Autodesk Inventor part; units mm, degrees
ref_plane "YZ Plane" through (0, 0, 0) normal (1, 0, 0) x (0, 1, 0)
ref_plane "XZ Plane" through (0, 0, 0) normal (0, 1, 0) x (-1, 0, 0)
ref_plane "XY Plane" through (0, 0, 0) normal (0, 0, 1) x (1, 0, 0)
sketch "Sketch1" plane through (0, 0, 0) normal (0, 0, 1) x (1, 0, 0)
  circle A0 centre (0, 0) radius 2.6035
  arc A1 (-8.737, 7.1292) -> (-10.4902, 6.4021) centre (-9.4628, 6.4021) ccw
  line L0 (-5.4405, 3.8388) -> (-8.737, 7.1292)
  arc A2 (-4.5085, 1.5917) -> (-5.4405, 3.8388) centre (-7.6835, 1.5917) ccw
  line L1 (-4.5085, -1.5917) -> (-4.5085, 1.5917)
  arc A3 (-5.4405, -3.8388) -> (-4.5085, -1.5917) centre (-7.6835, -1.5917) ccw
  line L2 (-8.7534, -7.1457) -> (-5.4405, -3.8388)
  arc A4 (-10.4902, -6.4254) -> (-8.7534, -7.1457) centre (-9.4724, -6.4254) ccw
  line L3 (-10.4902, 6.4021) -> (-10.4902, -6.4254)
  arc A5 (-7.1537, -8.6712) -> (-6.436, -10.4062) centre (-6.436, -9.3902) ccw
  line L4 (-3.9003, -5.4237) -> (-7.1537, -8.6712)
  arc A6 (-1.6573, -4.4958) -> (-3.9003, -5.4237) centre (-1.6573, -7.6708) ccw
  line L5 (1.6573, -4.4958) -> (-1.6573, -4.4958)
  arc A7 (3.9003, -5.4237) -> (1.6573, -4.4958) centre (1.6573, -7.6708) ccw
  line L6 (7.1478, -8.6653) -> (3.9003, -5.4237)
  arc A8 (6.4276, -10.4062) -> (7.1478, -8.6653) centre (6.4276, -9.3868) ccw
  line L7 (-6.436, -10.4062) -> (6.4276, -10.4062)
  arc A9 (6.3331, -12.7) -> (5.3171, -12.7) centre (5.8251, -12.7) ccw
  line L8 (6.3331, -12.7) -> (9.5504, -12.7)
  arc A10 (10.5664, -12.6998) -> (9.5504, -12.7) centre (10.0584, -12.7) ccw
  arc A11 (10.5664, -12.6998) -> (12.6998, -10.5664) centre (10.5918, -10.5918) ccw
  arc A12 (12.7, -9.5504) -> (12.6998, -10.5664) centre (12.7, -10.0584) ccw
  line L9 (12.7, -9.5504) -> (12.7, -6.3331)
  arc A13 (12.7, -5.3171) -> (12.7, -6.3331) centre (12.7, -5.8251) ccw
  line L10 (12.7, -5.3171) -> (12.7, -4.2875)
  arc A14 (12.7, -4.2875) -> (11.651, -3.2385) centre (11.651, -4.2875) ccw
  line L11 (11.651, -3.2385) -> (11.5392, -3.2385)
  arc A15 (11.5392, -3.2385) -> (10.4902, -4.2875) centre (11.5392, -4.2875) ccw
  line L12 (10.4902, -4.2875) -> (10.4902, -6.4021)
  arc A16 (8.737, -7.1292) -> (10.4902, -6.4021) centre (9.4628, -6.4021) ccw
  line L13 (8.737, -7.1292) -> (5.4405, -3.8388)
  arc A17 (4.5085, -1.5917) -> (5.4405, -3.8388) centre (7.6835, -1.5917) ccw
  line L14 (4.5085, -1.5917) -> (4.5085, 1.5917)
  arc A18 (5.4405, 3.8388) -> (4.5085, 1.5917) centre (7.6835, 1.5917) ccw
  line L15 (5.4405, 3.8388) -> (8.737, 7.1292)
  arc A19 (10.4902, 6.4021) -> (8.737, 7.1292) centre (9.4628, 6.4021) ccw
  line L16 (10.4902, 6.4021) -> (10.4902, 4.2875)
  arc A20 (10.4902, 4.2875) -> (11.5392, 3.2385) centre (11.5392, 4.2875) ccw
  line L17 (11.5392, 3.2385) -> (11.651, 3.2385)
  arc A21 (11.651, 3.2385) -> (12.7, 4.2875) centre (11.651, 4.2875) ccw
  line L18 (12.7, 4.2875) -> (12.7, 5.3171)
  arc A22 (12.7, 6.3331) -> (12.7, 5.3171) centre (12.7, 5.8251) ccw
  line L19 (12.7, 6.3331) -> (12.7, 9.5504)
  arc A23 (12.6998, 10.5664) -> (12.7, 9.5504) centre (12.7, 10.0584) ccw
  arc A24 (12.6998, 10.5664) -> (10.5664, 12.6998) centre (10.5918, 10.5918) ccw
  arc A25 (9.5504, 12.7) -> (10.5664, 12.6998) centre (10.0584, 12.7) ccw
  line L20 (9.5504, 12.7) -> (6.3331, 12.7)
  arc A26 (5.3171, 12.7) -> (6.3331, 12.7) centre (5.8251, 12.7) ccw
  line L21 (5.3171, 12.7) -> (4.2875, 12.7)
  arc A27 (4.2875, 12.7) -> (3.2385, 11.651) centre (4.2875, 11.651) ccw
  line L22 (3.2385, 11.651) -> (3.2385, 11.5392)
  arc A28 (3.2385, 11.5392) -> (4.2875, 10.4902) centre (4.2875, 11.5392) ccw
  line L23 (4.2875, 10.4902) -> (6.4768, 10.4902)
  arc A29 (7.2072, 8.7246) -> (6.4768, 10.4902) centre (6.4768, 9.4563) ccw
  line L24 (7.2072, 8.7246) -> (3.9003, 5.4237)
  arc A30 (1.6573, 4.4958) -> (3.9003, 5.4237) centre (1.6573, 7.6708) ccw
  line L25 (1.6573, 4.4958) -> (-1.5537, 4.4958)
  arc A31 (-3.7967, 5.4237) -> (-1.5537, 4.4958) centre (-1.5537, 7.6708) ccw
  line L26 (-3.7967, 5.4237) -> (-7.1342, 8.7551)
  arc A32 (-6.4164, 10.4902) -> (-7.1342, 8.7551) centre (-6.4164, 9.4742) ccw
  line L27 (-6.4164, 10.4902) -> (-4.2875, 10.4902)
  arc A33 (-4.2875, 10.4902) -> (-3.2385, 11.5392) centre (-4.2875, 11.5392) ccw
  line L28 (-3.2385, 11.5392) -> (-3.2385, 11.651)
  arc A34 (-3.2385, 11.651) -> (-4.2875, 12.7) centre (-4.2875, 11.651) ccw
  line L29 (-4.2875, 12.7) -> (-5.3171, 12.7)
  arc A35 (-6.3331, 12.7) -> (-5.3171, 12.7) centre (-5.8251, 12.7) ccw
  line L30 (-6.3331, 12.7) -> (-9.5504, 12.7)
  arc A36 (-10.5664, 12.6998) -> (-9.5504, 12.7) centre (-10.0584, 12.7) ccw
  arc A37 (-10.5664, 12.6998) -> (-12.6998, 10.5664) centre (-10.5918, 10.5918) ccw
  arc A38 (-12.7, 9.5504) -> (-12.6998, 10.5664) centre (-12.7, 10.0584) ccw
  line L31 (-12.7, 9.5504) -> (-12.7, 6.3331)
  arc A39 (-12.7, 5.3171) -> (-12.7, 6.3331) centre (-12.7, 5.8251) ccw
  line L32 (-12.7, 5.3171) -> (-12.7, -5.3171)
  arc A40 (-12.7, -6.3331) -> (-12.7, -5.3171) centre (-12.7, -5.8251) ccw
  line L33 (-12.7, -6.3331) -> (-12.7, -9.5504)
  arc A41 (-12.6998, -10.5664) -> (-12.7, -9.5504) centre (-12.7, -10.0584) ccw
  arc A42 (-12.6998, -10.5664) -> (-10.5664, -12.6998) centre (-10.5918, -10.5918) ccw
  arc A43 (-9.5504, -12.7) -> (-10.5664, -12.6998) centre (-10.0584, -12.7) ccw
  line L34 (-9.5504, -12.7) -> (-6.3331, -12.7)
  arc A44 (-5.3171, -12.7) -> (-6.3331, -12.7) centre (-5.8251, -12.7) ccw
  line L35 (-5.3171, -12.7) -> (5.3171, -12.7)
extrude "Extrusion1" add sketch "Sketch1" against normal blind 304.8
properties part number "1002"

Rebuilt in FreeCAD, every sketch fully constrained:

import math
import FreeCAD as App
import Part
import Sketcher
Q = App.Units.Quantity

doc = App.newDocument("Part")
body = doc.addObject("PartDesign::Body", "Body")

# Sketch on XY plane
sketch1 = body.newObject("Sketcher::SketchObject", "Sketch")
sketch1.AttachmentSupport = (doc.getObject("XY_Plane"), [""])
sketch1.MapMode = "FlatFace"
sketch1.addGeometry([
    Part.ArcOfCircle(Part.Circle(App.Vector(5.8251, -12.7, 0), App.Vector(0, 0, 1), 0.508), math.radians(0), math.radians(180)),  # 0
    Part.LineSegment(App.Vector(6.3331, -12.7, 0), App.Vector(9.5504, -12.7, 0)),  # 1
    Part.ArcOfCircle(Part.Circle(App.Vector(10.0584, -12.7, 0), App.Vector(0, 0, 1), 0.508), math.radians(0.022557), math.radians(180)),  # 2
    Part.ArcOfCircle(Part.Circle(App.Vector(10.5918, -10.5918, 0), App.Vector(0, 0, 1), 2.108153), math.radians(-90.690343), math.radians(0.690343)),  # 3
    Part.ArcOfCircle(Part.Circle(App.Vector(12.7, -10.0584, 0), App.Vector(0, 0, 1), 0.508), math.radians(90), math.radians(269.977443)),  # 4
    Part.LineSegment(App.Vector(12.7, -9.5504, 0), App.Vector(12.7, -6.3331, 0)),  # 5
    Part.ArcOfCircle(Part.Circle(App.Vector(12.7, -5.8251, 0), App.Vector(0, 0, 1), 0.508), math.radians(90), math.radians(270)),  # 6
    Part.LineSegment(App.Vector(12.7, -5.3171, 0), App.Vector(12.7, -4.2875, 0)),  # 7
    Part.ArcOfCircle(Part.Circle(App.Vector(11.651, -4.2875, 0), App.Vector(0, 0, 1), 1.049), math.radians(0), math.radians(90)),  # 8
    Part.LineSegment(App.Vector(11.651, -3.2385, 0), App.Vector(11.5392, -3.2385, 0)),  # 9
    Part.ArcOfCircle(Part.Circle(App.Vector(11.5392, -4.2875, 0), App.Vector(0, 0, 1), 1.049), math.radians(90), math.radians(180)),  # 10
    Part.LineSegment(App.Vector(10.4902, -4.2875, 0), App.Vector(10.4902, -6.4021, 0)),  # 11
    Part.ArcOfCircle(Part.Circle(App.Vector(9.4628, -6.4021, 0), App.Vector(0, 0, 1), 1.027356), math.radians(-134.948734), math.radians(0)),  # 12
    Part.LineSegment(App.Vector(8.737, -7.1292, 0), App.Vector(5.4405, -3.8388, 0)),  # 13
    Part.ArcOfCircle(Part.Circle(App.Vector(7.6835, -1.5917, 0), App.Vector(0, 0, 1), 3.175), math.radians(180), math.radians(225.052318)),  # 14
    Part.LineSegment(App.Vector(4.5085, -1.5917, 0), App.Vector(4.5085, 1.5917, 0)),  # 15
    Part.ArcOfCircle(Part.Circle(App.Vector(7.6835, 1.5917, 0), App.Vector(0, 0, 1), 3.174981), math.radians(134.947682), math.radians(180)),  # 16
    Part.LineSegment(App.Vector(5.4405, 3.8388, 0), App.Vector(8.737, 7.1292, 0)),  # 17
    Part.ArcOfCircle(Part.Circle(App.Vector(9.4628, 6.4021, 0), App.Vector(0, 0, 1), 1.0274), math.radians(0), math.radians(134.948734)),  # 18
    Part.LineSegment(App.Vector(10.4902, 6.4021, 0), App.Vector(10.4902, 4.2875, 0)),  # 19
    Part.ArcOfCircle(Part.Circle(App.Vector(11.5392, 4.2875, 0), App.Vector(0, 0, 1), 1.049), math.radians(180), math.radians(270)),  # 20
    Part.LineSegment(App.Vector(11.5392, 3.2385, 0), App.Vector(11.651, 3.2385, 0)),  # 21
    Part.ArcOfCircle(Part.Circle(App.Vector(11.651, 4.2875, 0), App.Vector(0, 0, 1), 1.049), math.radians(-90), math.radians(0)),  # 22
    Part.LineSegment(App.Vector(12.7, 4.2875, 0), App.Vector(12.7, 5.3171, 0)),  # 23
    Part.ArcOfCircle(Part.Circle(App.Vector(12.7, 5.8251, 0), App.Vector(0, 0, 1), 0.508), math.radians(90), math.radians(270)),  # 24
    Part.LineSegment(App.Vector(12.7, 6.3331, 0), App.Vector(12.7, 9.5504, 0)),  # 25
    Part.ArcOfCircle(Part.Circle(App.Vector(12.7, 10.0584, 0), App.Vector(0, 0, 1), 0.508), math.radians(90.022557), math.radians(270)),  # 26
    Part.ArcOfCircle(Part.Circle(App.Vector(10.5918, 10.5918, 0), App.Vector(0, 0, 1), 2.108153), math.radians(-0.690343), math.radians(90.690343)),  # 27
    Part.ArcOfCircle(Part.Circle(App.Vector(10.0584, 12.7, 0), App.Vector(0, 0, 1), 0.508), math.radians(180), math.radians(359.977443)),  # 28
    Part.LineSegment(App.Vector(9.5504, 12.7, 0), App.Vector(6.3331, 12.7, 0)),  # 29
    Part.ArcOfCircle(Part.Circle(App.Vector(5.8251, 12.7, 0), App.Vector(0, 0, 1), 0.508), math.radians(180), math.radians(360)),  # 30
    Part.LineSegment(App.Vector(5.3171, 12.7, 0), App.Vector(4.2875, 12.7, 0)),  # 31
    Part.ArcOfCircle(Part.Circle(App.Vector(4.2875, 11.651, 0), App.Vector(0, 0, 1), 1.049), math.radians(90), math.radians(180)),  # 32
    Part.LineSegment(App.Vector(3.2385, 11.651, 0), App.Vector(3.2385, 11.5392, 0)),  # 33
    Part.ArcOfCircle(Part.Circle(App.Vector(4.2875, 11.5392, 0), App.Vector(0, 0, 1), 1.049), math.radians(180), math.radians(270)),  # 34
    Part.LineSegment(App.Vector(4.2875, 10.4902, 0), App.Vector(6.4768, 10.4902, 0)),  # 35
    Part.ArcOfCircle(Part.Circle(App.Vector(6.4768, 9.4563, 0), App.Vector(0, 0, 1), 1.033861), math.radians(-45.050944), math.radians(90)),  # 36
    Part.LineSegment(App.Vector(7.2072, 8.7246, 0), App.Vector(3.9003, 5.4237, 0)),  # 37
    Part.ArcOfCircle(Part.Circle(App.Vector(1.6573, 7.6708, 0), App.Vector(0, 0, 1), 3.175), math.radians(-90), math.radians(-45.052318)),  # 38
    Part.LineSegment(App.Vector(1.6573, 4.4958, 0), App.Vector(-1.5537, 4.4958, 0)),  # 39
    Part.ArcOfCircle(Part.Circle(App.Vector(-1.5537, 7.6708, 0), App.Vector(0, 0, 1), 3.174981), math.radians(-134.947682), math.radians(-90)),  # 40
    Part.LineSegment(App.Vector(-3.7967, 5.4237, 0), App.Vector(-7.1342, 8.7551, 0)),  # 41
    Part.ArcOfCircle(Part.Circle(App.Vector(-6.4164, 9.4742, 0), App.Vector(0, 0, 1), 1.016), math.radians(90), math.radians(225.051837)),  # 42
    Part.LineSegment(App.Vector(-6.4164, 10.4902, 0), App.Vector(-4.2875, 10.4902, 0)),  # 43
    Part.ArcOfCircle(Part.Circle(App.Vector(-4.2875, 11.5392, 0), App.Vector(0, 0, 1), 1.049), math.radians(-90), math.radians(0)),  # 44
    Part.LineSegment(App.Vector(-3.2385, 11.5392, 0), App.Vector(-3.2385, 11.651, 0)),  # 45
    Part.ArcOfCircle(Part.Circle(App.Vector(-4.2875, 11.651, 0), App.Vector(0, 0, 1), 1.049), math.radians(0), math.radians(90)),  # 46
    Part.LineSegment(App.Vector(-4.2875, 12.7, 0), App.Vector(-5.3171, 12.7, 0)),  # 47
    Part.ArcOfCircle(Part.Circle(App.Vector(-5.8251, 12.7, 0), App.Vector(0, 0, 1), 0.508), math.radians(180), math.radians(360)),  # 48
    Part.LineSegment(App.Vector(-6.3331, 12.7, 0), App.Vector(-9.5504, 12.7, 0)),  # 49
    Part.ArcOfCircle(Part.Circle(App.Vector(-10.0584, 12.7, 0), App.Vector(0, 0, 1), 0.508), math.radians(-179.977443), math.radians(0)),  # 50
    Part.ArcOfCircle(Part.Circle(App.Vector(-10.5918, 10.5918, 0), App.Vector(0, 0, 1), 2.108153), math.radians(89.309657), math.radians(180.690343)),  # 51
    Part.ArcOfCircle(Part.Circle(App.Vector(-12.7, 10.0584, 0), App.Vector(0, 0, 1), 0.508), math.radians(-90), math.radians(89.977443)),  # 52
    Part.LineSegment(App.Vector(-12.7, 9.5504, 0), App.Vector(-12.7, 6.3331, 0)),  # 53
    Part.ArcOfCircle(Part.Circle(App.Vector(-12.7, 5.8251, 0), App.Vector(0, 0, 1), 0.508), math.radians(-90), math.radians(90)),  # 54
    Part.LineSegment(App.Vector(-12.7, 5.3171, 0), App.Vector(-12.7, -5.3171, 0)),  # 55
    Part.ArcOfCircle(Part.Circle(App.Vector(-12.7, -5.8251, 0), App.Vector(0, 0, 1), 0.508), math.radians(-90), math.radians(90)),  # 56
    Part.LineSegment(App.Vector(-12.7, -6.3331, 0), App.Vector(-12.7, -9.5504, 0)),  # 57
    Part.ArcOfCircle(Part.Circle(App.Vector(-12.7, -10.0584, 0), App.Vector(0, 0, 1), 0.508), math.radians(-89.977443), math.radians(90)),  # 58
    Part.ArcOfCircle(Part.Circle(App.Vector(-10.5918, -10.5918, 0), App.Vector(0, 0, 1), 2.108153), math.radians(179.309657), math.radians(270.690343)),  # 59
    Part.ArcOfCircle(Part.Circle(App.Vector(-10.0584, -12.7, 0), App.Vector(0, 0, 1), 0.508), math.radians(0), math.radians(179.977443)),  # 60
    Part.LineSegment(App.Vector(-9.5504, -12.7, 0), App.Vector(-6.3331, -12.7, 0)),  # 61
    Part.ArcOfCircle(Part.Circle(App.Vector(-5.8251, -12.7, 0), App.Vector(0, 0, 1), 0.508), math.radians(0), math.radians(180)),  # 62
    Part.LineSegment(App.Vector(-5.3171, -12.7, 0), App.Vector(5.3171, -12.7, 0)),  # 63
    Part.ArcOfCircle(Part.Circle(App.Vector(-6.436, -9.3902, 0), App.Vector(0, 0, 1), 1.015901), math.radians(134.948156), math.radians(270)),  # 64
    Part.LineSegment(App.Vector(-7.1537, -8.6712, 0), App.Vector(-3.9003, -5.4237, 0)),  # 65
    Part.ArcOfCircle(Part.Circle(App.Vector(-1.6573, -7.6708, 0), App.Vector(0, 0, 1), 3.175), math.radians(90), math.radians(134.947682)),  # 66
    Part.LineSegment(App.Vector(-1.6573, -4.4958, 0), App.Vector(1.6573, -4.4958, 0)),  # 67
    Part.ArcOfCircle(Part.Circle(App.Vector(1.6573, -7.6708, 0), App.Vector(0, 0, 1), 3.174981), math.radians(45.052318), math.radians(90)),  # 68
    Part.LineSegment(App.Vector(3.9003, -5.4237, 0), App.Vector(7.1478, -8.6653, 0)),  # 69
    Part.ArcOfCircle(Part.Circle(App.Vector(6.4276, -9.3868, 0), App.Vector(0, 0, 1), 1.0194), math.radians(-90), math.radians(45.051664)),  # 70
    Part.LineSegment(App.Vector(6.4276, -10.4062, 0), App.Vector(-6.436, -10.4062, 0)),  # 71
    Part.ArcOfCircle(Part.Circle(App.Vector(-9.4628, 6.4021, 0), App.Vector(0, 0, 1), 1.027356), math.radians(45.051266), math.radians(180)),  # 72
    Part.LineSegment(App.Vector(-8.737, 7.1292, 0), App.Vector(-5.4405, 3.8388, 0)),  # 73
    Part.ArcOfCircle(Part.Circle(App.Vector(-7.6835, 1.5917, 0), App.Vector(0, 0, 1), 3.175), math.radians(0), math.radians(45.052318)),  # 74
    Part.LineSegment(App.Vector(-4.5085, 1.5917, 0), App.Vector(-4.5085, -1.5917, 0)),  # 75
    Part.ArcOfCircle(Part.Circle(App.Vector(-7.6835, -1.5917, 0), App.Vector(0, 0, 1), 3.174981), math.radians(-45.052318), math.radians(0)),  # 76
    Part.LineSegment(App.Vector(-5.4405, -3.8388, 0), App.Vector(-8.7534, -7.1457, 0)),  # 77
    Part.ArcOfCircle(Part.Circle(App.Vector(-9.4724, -6.4254, 0), App.Vector(0, 0, 1), 1.0178), math.radians(180), math.radians(314.94825)),  # 78
    Part.LineSegment(App.Vector(-10.4902, -6.4254, 0), App.Vector(-10.4902, 6.4021, 0)),  # 79
    Part.Circle(App.Vector(0, 0, 0), App.Vector(0, 0, 1), 2.6035),  # 80
], False)
sketch1.addConstraint([
    Sketcher.Constraint("Coincident", 0, 1, 1, 1),
    Sketcher.Constraint("Coincident", 1, 2, 2, 2),
    Sketcher.Constraint("Coincident", 2, 1, 3, 1),
    Sketcher.Constraint("Coincident", 3, 2, 4, 2),
    Sketcher.Constraint("Coincident", 4, 1, 5, 1),
    Sketcher.Constraint("Coincident", 5, 2, 6, 2),
    Sketcher.Constraint("Coincident", 6, 1, 7, 1),
    Sketcher.Constraint("Tangent", 7, 2, 8, 1),
    Sketcher.Constraint("Tangent", 8, 2, 9, 1),
    Sketcher.Constraint("Tangent", 9, 2, 10, 1),
    Sketcher.Constraint("Tangent", 10, 2, 11, 1),
    Sketcher.Constraint("Tangent", 11, 2, 12, 2),
    Sketcher.Constraint("Tangent", 12, 1, 13, 1),
    Sketcher.Constraint("Tangent", 13, 2, 14, 2),
    Sketcher.Constraint("Tangent", 14, 1, 15, 1),
    Sketcher.Constraint("Tangent", 15, 2, 16, 2),
    Sketcher.Constraint("Tangent", 16, 1, 17, 1),
    Sketcher.Constraint("Tangent", 17, 2, 18, 2),
    Sketcher.Constraint("Tangent", 18, 1, 19, 1),
    Sketcher.Constraint("Tangent", 19, 2, 20, 1),
    Sketcher.Constraint("Tangent", 20, 2, 21, 1),
    Sketcher.Constraint("Tangent", 21, 2, 22, 1),
    Sketcher.Constraint("Tangent", 22, 2, 23, 1),
    Sketcher.Constraint("Coincident", 23, 2, 24, 2),
    Sketcher.Constraint("Coincident", 24, 1, 25, 1),
    Sketcher.Constraint("Coincident", 25, 2, 26, 2),
    Sketcher.Constraint("Coincident", 26, 1, 27, 1),
    Sketcher.Constraint("Coincident", 27, 2, 28, 2),
    Sketcher.Constraint("Coincident", 28, 1, 29, 1),
    Sketcher.Constraint("Coincident", 29, 2, 30, 2),
    Sketcher.Constraint("Coincident", 30, 1, 31, 1),
    Sketcher.Constraint("Tangent", 31, 2, 32, 1),
    Sketcher.Constraint("Tangent", 32, 2, 33, 1),
    Sketcher.Constraint("Tangent", 33, 2, 34, 1),
    Sketcher.Constraint("Tangent", 34, 2, 35, 1),
    Sketcher.Constraint("Tangent", 35, 2, 36, 2),
    Sketcher.Constraint("Tangent", 36, 1, 37, 1),
    Sketcher.Constraint("Tangent", 37, 2, 38, 2),
    Sketcher.Constraint("Tangent", 38, 1, 39, 1),
    Sketcher.Constraint("Tangent", 39, 2, 40, 2),
    Sketcher.Constraint("Tangent", 40, 1, 41, 1),
    Sketcher.Constraint("Tangent", 41, 2, 42, 2),
    Sketcher.Constraint("Tangent", 42, 1, 43, 1),
    Sketcher.Constraint("Tangent", 43, 2, 44, 1),
    Sketcher.Constraint("Tangent", 44, 2, 45, 1),
    Sketcher.Constraint("Tangent", 45, 2, 46, 1),
    Sketcher.Constraint("Tangent", 46, 2, 47, 1),
    Sketcher.Constraint("Coincident", 47, 2, 48, 2),
    Sketcher.Constraint("Coincident", 48, 1, 49, 1),
    Sketcher.Constraint("Coincident", 49, 2, 50, 2),
    Sketcher.Constraint("Coincident", 50, 1, 51, 1),
    Sketcher.Constraint("Coincident", 51, 2, 52, 2),
    Sketcher.Constraint("Coincident", 52, 1, 53, 1),
    Sketcher.Constraint("Coincident", 53, 2, 54, 2),
    Sketcher.Constraint("Coincident", 54, 1, 55, 1),
    Sketcher.Constraint("Coincident", 55, 2, 56, 2),
    Sketcher.Constraint("Coincident", 56, 1, 57, 1),
    Sketcher.Constraint("Coincident", 57, 2, 58, 2),
    Sketcher.Constraint("Coincident", 58, 1, 59, 1),
    Sketcher.Constraint("Coincident", 59, 2, 60, 2),
    Sketcher.Constraint("Coincident", 60, 1, 61, 1),
    Sketcher.Constraint("Coincident", 61, 2, 62, 2),
    Sketcher.Constraint("Coincident", 62, 1, 63, 1),
    Sketcher.Constraint("Coincident", 63, 2, 0, 2),
    Sketcher.Constraint("Tangent", 64, 1, 65, 1),
    Sketcher.Constraint("Tangent", 65, 2, 66, 2),
    Sketcher.Constraint("Tangent", 66, 1, 67, 1),
    Sketcher.Constraint("Tangent", 67, 2, 68, 2),
    Sketcher.Constraint("Tangent", 68, 1, 69, 1),
    Sketcher.Constraint("Tangent", 69, 2, 70, 2),
    Sketcher.Constraint("Tangent", 70, 1, 71, 1),
    Sketcher.Constraint("Tangent", 71, 2, 64, 2),
    Sketcher.Constraint("Tangent", 72, 1, 73, 1),
    Sketcher.Constraint("Tangent", 73, 2, 74, 2),
    Sketcher.Constraint("Tangent", 74, 1, 75, 1),
    Sketcher.Constraint("Tangent", 75, 2, 76, 2),
    Sketcher.Constraint("Tangent", 76, 1, 77, 1),
    Sketcher.Constraint("Tangent", 77, 2, 78, 2),
    Sketcher.Constraint("Tangent", 78, 1, 79, 1),
    Sketcher.Constraint("Tangent", 79, 2, 72, 2),
    Sketcher.Constraint("Horizontal", 1),
    Sketcher.Constraint("Vertical", 5),
    Sketcher.Constraint("Vertical", 7),
    Sketcher.Constraint("Horizontal", 9),
    Sketcher.Constraint("Vertical", 11),
    Sketcher.Constraint("Vertical", 15),
    Sketcher.Constraint("Vertical", 19),
    Sketcher.Constraint("Horizontal", 21),
    Sketcher.Constraint("Vertical", 23),
    Sketcher.Constraint("Vertical", 25),
    Sketcher.Constraint("Horizontal", 29),
    Sketcher.Constraint("Horizontal", 31),
    Sketcher.Constraint("Vertical", 33),
    Sketcher.Constraint("Horizontal", 35),
    Sketcher.Constraint("Horizontal", 39),
    Sketcher.Constraint("Horizontal", 43),
    Sketcher.Constraint("Vertical", 45),
    Sketcher.Constraint("Horizontal", 47),
    Sketcher.Constraint("Horizontal", 49),
    Sketcher.Constraint("Vertical", 53),
    Sketcher.Constraint("Vertical", 55),
    Sketcher.Constraint("Vertical", 57),
    Sketcher.Constraint("Horizontal", 61),
    Sketcher.Constraint("Horizontal", 63),
    Sketcher.Constraint("Horizontal", 67),
    Sketcher.Constraint("Horizontal", 71),
    Sketcher.Constraint("Vertical", 75),
    Sketcher.Constraint("Vertical", 79),
    Sketcher.Constraint("Coincident", 80, 3, -1, 1),
    Sketcher.Constraint("Equal", 0, 2),
    Sketcher.Constraint("Equal", 2, 4),
    Sketcher.Constraint("Equal", 4, 6),
    Sketcher.Constraint("Equal", 8, 10),
    Sketcher.Constraint("Equal", 14, 16),
    Sketcher.Constraint("Equal", 12, 18),
    Sketcher.Constraint("Equal", 10, 20),
    Sketcher.Constraint("Equal", 20, 22),
    Sketcher.Constraint("Equal", 6, 24),
    Sketcher.Constraint("Equal", 24, 26),
    Sketcher.Constraint("Equal", 3, 27),
    Sketcher.Constraint("Equal", 26, 28),
    Sketcher.Constraint("Equal", 28, 30),
    Sketcher.Constraint("Equal", 22, 32),
    Sketcher.Constraint("Equal", 32, 34),
    Sketcher.Constraint("Equal", 16, 38),
    Sketcher.Constraint("Equal", 38, 40),
    Sketcher.Constraint("Equal", 34, 44),
    Sketcher.Constraint("Equal", 44, 46),
    Sketcher.Constraint("Equal", 30, 48),
    Sketcher.Constraint("Equal", 48, 50),
    Sketcher.Constraint("Equal", 27, 51),
    Sketcher.Constraint("Equal", 50, 52),
    Sketcher.Constraint("Equal", 52, 54),
    Sketcher.Constraint("Equal", 54, 56),
    Sketcher.Constraint("Equal", 56, 58),
    Sketcher.Constraint("Equal", 51, 59),
    Sketcher.Constraint("Equal", 58, 60),
    Sketcher.Constraint("Equal", 60, 62),
    Sketcher.Constraint("Equal", 42, 64),
    Sketcher.Constraint("Equal", 40, 66),
    Sketcher.Constraint("Equal", 66, 68),
    Sketcher.Constraint("Equal", 18, 72),
    Sketcher.Constraint("Equal", 68, 74),
    Sketcher.Constraint("Equal", 74, 76),
    Sketcher.Constraint("Symmetric", 0, 3, 48, 3, -1, 1),
    Sketcher.Constraint("Symmetric", 2, 3, 50, 3, -1, 1),
    Sketcher.Constraint("Symmetric", 3, 3, 51, 3, -1, 1),
    Sketcher.Constraint("Symmetric", 4, 3, 52, 3, -1, 1),
    Sketcher.Constraint("Symmetric", 6, 3, 54, 3, -1, 1),
    Sketcher.Constraint("Symmetric", 24, 3, 56, 3, -1, 1),
    Sketcher.Constraint("Symmetric", 26, 3, 58, 3, -1, 1),
    Sketcher.Constraint("Symmetric", 27, 3, 59, 3, -1, 1),
    Sketcher.Constraint("Symmetric", 28, 3, 60, 3, -1, 1),
    Sketcher.Constraint("Symmetric", 30, 3, 62, 3, -1, 1),
    Sketcher.Constraint("Symmetric", 38, 3, 66, 3, -1, 1),
    Sketcher.Constraint("Symmetric", 12, 3, 72, 3, -1, 1),
    Sketcher.Constraint("Symmetric", 14, 3, 74, 3, -1, 1),
    Sketcher.Constraint("Symmetric", 16, 1, 76, 1, -1, 1),
    Sketcher.Constraint("Symmetric", 34, 3, 44, 3, -2),
    Sketcher.Constraint("Symmetric", 30, 3, 48, 3, -2),
    Sketcher.Constraint("Symmetric", 28, 3, 50, 3, -2),
    Sketcher.Constraint("Symmetric", 27, 3, 51, 3, -2),
    Sketcher.Constraint("Symmetric", 26, 3, 52, 3, -2),
    Sketcher.Constraint("Symmetric", 24, 3, 54, 3, -2),
    Sketcher.Constraint("Symmetric", 18, 3, 72, 3, -2),
    Sketcher.Constraint("Symmetric", 65, 2, 68, 1, -2),
    Sketcher.Constraint("Symmetric", 8, 3, 22, 3, -1),
    Sketcher.Constraint("Parallel", 17, 37),
    Sketcher.Constraint("Parallel", 13, 41),
    Sketcher.Constraint("Parallel", 37, 65),
    Sketcher.Constraint("Parallel", 41, 69),
    Sketcher.Constraint("Horizontal", 0, 3, 2, 3),
    Sketcher.Constraint("Horizontal", 32, 3, 46, 3),
    Sketcher.Constraint("Horizontal", 62, 3, 0, 1),
    Sketcher.Constraint("Horizontal", 1, 2, 2, 1),
    Sketcher.Constraint("Horizontal", 27, 2, 28, 1),
    Sketcher.Constraint("Horizontal", 29, 2, 30, 1),
    Sketcher.Constraint("Horizontal", 47, 2, 48, 1),
    Sketcher.Constraint("Horizontal", 59, 2, 60, 1),
    Sketcher.Constraint("Horizontal", 61, 2, 62, 1),
    Sketcher.Constraint("Vertical", 4, 3, 6, 3),
    Sketcher.Constraint("Vertical", 26, 3, 3, 2),
    Sketcher.Constraint("Vertical", 3, 2, 4, 1),
    Sketcher.Constraint("Vertical", 5, 2, 6, 1),
    Sketcher.Constraint("Vertical", 23, 2, 24, 1),
    Sketcher.Constraint("Vertical", 51, 2, 52, 1),
    Sketcher.Constraint("Vertical", 53, 2, 54, 1),
    Sketcher.Constraint("Vertical", 55, 2, 56, 1),
    Sketcher.Constraint("Equal", 61, 5),
    Sketcher.Constraint("Equal", 47, 7),
    Sketcher.Constraint("Equal", 21, 33),
    Sketcher.Constraint("Equal", 63, 55),
    Sketcher.Constraint("Radius", 0, Q("0.02 in")),
    Sketcher.Constraint("Radius", 42, Q("0.04 in")),
    Sketcher.Constraint("Diameter", 80, Q("0.205 in")),
    Sketcher.Constraint("Radius", 3, Q("0.083 in")),
    Sketcher.Constraint("Radius", 14, Q("0.125 in")),
    Sketcher.Constraint("DistanceY", 0, 3, -1, 1, Q("0.5 in")),
    Sketcher.Constraint("DistanceX", -1, 1, 4, 3, Q("0.5 in")),
    Sketcher.Constraint("Radius", 8, Q("0.0413 in")),
    Sketcher.Constraint("Radius", 36, Q("0.0407 in")),
    Sketcher.Constraint("Radius", 12, 1.0274),
    Sketcher.Constraint("Radius", 70, 1.0194),
    Sketcher.Constraint("Radius", 78, 1.0178),
    Sketcher.Constraint("DistanceX", 9, 2, 9, 1, Q("0.0044 in")),
    Sketcher.Constraint("DistanceX", 35, 1, 35, 2, Q("0.0862 in")),
    Sketcher.Constraint("DistanceX", 67, 1, 67, 2, Q("0.1305 in")),
    Sketcher.Constraint("DistanceX", -1, 1, 2, 3, Q("0.396 in")),
    Sketcher.Constraint("DistanceX", -1, 1, 36, 3, Q("0.255 in")),
    Sketcher.Constraint("DistanceY", -1, 1, 38, 3, Q("0.302 in")),
    Sketcher.Constraint("DistanceX", 1, 1, 1, 2, 3.2173),
    Sketcher.Constraint("DistanceX", 39, 2, 39, 1, 3.211),
    Sketcher.Constraint("DistanceX", 71, 2, 71, 1, 12.8636),
    Sketcher.Constraint("DistanceY", 11, 2, 11, 1, 2.1146),
    Sketcher.Constraint("DistanceY", 15, 1, 15, 2, 3.1834),
])
pad1 = body.newObject("PartDesign::Pad", "Pad")
pad1.Profile = sketch1
pad1.Length = Q("12 in")
pad1.Reversed = True

doc.recompute()
